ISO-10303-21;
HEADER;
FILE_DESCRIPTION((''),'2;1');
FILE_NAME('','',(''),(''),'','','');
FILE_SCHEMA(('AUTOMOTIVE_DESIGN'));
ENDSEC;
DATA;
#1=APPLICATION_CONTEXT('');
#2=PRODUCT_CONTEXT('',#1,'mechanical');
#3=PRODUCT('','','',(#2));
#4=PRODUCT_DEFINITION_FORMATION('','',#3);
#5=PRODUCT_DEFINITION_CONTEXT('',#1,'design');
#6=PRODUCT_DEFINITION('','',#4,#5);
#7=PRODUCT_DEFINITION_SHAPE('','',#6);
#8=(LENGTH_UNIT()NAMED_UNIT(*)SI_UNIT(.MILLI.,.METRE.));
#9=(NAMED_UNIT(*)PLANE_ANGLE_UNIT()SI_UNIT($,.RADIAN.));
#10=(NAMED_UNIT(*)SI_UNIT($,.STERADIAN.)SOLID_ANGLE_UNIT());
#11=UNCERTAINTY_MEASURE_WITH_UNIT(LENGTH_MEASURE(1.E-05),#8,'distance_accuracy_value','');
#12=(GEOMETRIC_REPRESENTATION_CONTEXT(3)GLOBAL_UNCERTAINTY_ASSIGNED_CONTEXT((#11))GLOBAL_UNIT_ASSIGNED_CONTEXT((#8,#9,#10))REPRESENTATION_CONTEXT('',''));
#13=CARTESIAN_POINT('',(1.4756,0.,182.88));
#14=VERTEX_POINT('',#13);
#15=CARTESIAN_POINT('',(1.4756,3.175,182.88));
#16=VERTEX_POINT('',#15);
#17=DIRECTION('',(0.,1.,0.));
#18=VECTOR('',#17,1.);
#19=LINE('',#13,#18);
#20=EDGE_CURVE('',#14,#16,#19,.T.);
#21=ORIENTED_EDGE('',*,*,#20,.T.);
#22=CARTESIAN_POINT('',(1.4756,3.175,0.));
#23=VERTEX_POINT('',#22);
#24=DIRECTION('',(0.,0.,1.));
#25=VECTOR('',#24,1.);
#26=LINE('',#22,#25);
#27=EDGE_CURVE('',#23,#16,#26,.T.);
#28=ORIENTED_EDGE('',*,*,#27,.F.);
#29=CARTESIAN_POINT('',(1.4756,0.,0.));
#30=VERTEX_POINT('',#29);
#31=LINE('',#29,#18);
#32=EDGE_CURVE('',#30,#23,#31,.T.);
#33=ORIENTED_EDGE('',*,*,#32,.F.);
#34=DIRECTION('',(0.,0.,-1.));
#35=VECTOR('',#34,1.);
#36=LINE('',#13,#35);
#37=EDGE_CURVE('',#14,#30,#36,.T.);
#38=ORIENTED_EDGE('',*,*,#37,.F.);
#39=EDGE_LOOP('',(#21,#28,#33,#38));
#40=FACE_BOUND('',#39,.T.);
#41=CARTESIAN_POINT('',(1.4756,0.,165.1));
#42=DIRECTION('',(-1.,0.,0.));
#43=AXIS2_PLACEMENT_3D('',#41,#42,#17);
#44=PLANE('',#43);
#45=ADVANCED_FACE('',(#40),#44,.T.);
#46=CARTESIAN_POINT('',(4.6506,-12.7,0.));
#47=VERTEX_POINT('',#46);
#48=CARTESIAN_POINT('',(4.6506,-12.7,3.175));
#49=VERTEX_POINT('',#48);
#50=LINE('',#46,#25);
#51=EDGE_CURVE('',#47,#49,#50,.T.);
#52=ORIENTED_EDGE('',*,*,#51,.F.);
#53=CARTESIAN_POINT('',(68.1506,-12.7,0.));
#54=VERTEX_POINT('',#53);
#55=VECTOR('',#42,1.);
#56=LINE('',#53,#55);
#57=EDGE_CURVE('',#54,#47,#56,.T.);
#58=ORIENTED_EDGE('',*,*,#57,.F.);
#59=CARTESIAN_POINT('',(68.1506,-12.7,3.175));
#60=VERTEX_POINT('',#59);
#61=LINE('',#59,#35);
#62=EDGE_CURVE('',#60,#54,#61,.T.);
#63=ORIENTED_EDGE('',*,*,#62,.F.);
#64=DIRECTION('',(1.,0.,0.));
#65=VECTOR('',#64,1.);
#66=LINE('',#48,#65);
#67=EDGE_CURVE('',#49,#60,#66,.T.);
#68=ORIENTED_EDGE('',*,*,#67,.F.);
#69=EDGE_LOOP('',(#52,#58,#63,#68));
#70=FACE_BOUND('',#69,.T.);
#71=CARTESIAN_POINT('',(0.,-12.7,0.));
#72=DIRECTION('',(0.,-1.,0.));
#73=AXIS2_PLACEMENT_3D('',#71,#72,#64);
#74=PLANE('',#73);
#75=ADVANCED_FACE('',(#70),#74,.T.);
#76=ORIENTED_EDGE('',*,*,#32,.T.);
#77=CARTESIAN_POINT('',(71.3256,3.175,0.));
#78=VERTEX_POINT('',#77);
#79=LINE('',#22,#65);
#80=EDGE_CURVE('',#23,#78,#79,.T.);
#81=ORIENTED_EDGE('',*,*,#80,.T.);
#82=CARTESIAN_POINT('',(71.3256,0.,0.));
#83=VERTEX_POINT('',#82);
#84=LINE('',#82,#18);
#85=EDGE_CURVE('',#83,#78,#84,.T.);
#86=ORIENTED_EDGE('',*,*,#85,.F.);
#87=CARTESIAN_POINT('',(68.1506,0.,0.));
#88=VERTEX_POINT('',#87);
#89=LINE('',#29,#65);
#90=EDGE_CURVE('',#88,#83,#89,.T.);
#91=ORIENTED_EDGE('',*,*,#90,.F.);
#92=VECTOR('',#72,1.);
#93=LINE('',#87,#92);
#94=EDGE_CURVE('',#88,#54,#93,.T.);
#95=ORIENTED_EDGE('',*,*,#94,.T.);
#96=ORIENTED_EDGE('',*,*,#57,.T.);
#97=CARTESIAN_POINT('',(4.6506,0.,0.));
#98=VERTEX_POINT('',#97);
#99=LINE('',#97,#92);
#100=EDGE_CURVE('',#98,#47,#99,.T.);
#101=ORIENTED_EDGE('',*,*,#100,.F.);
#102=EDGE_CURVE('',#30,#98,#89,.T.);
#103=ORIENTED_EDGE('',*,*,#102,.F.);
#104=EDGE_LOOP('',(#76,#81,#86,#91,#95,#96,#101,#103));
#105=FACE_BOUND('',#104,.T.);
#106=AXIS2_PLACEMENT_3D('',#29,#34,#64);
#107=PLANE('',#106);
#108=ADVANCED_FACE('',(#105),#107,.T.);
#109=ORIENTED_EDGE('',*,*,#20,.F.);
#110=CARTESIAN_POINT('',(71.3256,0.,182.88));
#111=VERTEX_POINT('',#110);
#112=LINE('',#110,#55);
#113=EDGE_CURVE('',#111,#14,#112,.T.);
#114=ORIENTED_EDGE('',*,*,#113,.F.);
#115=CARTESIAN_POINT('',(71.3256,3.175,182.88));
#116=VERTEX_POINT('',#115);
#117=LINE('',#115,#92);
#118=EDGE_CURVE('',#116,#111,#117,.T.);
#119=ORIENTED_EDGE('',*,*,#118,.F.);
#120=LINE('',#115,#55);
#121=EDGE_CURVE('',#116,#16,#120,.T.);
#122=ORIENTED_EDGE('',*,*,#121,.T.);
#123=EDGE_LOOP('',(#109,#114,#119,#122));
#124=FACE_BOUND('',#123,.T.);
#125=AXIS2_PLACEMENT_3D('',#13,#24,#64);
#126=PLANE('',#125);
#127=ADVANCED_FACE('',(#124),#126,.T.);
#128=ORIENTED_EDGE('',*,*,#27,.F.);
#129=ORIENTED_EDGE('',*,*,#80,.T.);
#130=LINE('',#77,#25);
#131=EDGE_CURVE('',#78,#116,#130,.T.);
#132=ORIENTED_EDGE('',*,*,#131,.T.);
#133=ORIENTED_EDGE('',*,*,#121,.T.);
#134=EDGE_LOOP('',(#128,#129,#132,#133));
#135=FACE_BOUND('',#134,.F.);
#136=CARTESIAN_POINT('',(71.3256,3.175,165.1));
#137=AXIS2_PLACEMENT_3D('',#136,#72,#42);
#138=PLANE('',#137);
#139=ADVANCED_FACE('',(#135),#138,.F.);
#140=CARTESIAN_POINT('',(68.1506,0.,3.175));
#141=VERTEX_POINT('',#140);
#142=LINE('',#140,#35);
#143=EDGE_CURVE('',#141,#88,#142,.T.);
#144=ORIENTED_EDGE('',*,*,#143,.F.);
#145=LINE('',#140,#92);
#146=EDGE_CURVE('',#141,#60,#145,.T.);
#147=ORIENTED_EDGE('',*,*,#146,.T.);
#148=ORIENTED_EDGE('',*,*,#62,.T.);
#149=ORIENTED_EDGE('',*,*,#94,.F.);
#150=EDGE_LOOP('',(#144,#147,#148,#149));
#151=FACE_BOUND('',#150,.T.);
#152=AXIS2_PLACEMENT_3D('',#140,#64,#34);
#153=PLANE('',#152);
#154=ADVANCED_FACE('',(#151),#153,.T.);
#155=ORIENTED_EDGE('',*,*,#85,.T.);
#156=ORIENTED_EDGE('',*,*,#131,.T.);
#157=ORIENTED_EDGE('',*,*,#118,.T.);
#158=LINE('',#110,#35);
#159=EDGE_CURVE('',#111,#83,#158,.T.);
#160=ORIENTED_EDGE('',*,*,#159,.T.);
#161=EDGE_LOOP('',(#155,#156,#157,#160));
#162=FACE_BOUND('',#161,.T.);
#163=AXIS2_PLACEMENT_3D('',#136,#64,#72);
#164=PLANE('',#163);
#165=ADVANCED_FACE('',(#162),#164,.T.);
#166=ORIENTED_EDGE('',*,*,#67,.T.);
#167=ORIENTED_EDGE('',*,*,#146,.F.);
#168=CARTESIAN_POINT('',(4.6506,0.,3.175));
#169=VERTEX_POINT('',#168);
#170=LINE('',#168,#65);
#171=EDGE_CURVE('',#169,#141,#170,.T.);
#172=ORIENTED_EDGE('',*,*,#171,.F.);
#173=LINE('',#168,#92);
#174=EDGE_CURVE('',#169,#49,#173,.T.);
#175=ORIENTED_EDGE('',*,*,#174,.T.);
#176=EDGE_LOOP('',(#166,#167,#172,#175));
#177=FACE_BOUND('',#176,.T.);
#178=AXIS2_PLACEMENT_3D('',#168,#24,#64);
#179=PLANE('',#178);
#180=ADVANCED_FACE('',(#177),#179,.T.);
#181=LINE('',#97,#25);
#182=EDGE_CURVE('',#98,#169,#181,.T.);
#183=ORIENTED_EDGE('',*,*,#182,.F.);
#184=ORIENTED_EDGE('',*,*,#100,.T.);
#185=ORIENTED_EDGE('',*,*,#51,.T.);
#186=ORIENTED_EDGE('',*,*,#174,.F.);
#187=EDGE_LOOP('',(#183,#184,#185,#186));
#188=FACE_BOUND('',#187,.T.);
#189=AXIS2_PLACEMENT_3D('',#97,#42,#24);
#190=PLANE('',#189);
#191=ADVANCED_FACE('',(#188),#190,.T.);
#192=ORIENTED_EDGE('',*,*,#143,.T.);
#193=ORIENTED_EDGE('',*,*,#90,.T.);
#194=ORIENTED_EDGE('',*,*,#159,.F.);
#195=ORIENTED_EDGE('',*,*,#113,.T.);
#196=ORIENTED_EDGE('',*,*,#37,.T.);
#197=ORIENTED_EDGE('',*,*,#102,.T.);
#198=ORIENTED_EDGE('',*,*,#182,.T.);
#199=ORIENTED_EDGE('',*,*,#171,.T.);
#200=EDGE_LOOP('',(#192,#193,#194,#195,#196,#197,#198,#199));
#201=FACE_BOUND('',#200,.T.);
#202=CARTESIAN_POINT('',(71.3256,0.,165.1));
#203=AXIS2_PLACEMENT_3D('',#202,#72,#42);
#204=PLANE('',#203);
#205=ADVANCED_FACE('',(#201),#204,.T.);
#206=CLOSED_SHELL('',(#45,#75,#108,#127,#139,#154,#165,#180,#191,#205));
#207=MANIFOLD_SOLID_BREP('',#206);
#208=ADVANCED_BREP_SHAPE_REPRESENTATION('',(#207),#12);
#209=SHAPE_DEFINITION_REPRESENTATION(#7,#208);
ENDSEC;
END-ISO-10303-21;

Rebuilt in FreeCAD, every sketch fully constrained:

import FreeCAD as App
import Part
import Sketcher

V = App.Vector
Q = App.Units.Quantity

doc = App.newDocument("Part")
body = doc.addObject("PartDesign::Body", "Body")

sketch1 = body.newObject("Sketcher::SketchObject", "Sketch")
sketch1.AttachmentSupport = (doc.getObject("XZ_Plane"), [""])
sketch1.MapMode = "FlatFace"
sketch1.addGeometry([
    Part.LineSegment(V(71.3256, 0, 0), V(1.4756, 0, 0)),
    Part.LineSegment(V(1.4756, 0, 0), V(1.4756, 165.1, 0)),
    Part.LineSegment(V(1.4756, 165.1, 0), V(71.3256, 165.1, 0)),
    Part.LineSegment(V(71.3256, 165.1, 0), V(71.3256, 0, 0)),
], False)
sketch1.addConstraint([
    Sketcher.Constraint("Coincident", 0, 2, 1, 1),
    Sketcher.Constraint("Coincident", 1, 2, 2, 1),
    Sketcher.Constraint("Coincident", 2, 2, 3, 1),
    Sketcher.Constraint("Coincident", 3, 2, 0, 1),
    Sketcher.Constraint("Horizontal", 0),
    Sketcher.Constraint("Vertical", 1),
    Sketcher.Constraint("Horizontal", 2),
    Sketcher.Constraint("Vertical", 3),
    Sketcher.Constraint("PointOnObject", 0, 2, -1),
    Sketcher.Constraint("DistanceY", 1, 1, 1, 2, Q("6.5 in")),
    Sketcher.Constraint("DistanceX", 0, 2, 0, 1, Q("2.75 in")),
    Sketcher.Constraint("DistanceX", -1, 1, 0, 2, Q("0.0581 in")),
])
pad1 = body.newObject("PartDesign::Pad", "Pad")
pad1.Profile = sketch1
pad1.Length = Q("0.125 in")
pad1.Reversed = True

sketch2 = body.newObject("Sketcher::SketchObject", "Sketch001")
sketch2.AttachmentSupport = (doc.getObject("XZ_Plane"), [""])
sketch2.MapMode = "FlatFace"
sketch2.addGeometry([
    Part.LineSegment(V(4.6506, 0, 0), V(68.1506, 0, 0)),
    Part.LineSegment(V(68.1506, 0, 0), V(68.1506, 3.175, 0)),
    Part.LineSegment(V(68.1506, 3.175, 0), V(4.6506, 3.175, 0)),
    Part.LineSegment(V(4.6506, 3.175, 0), V(4.6506, 0, 0)),
], False)
sketch2.addConstraint([
    Sketcher.Constraint("Coincident", 0, 2, 1, 1),
    Sketcher.Constraint("Coincident", 1, 2, 2, 1),
    Sketcher.Constraint("Coincident", 2, 2, 3, 1),
    Sketcher.Constraint("Coincident", 3, 2, 0, 1),
    Sketcher.Constraint("Horizontal", 0),
    Sketcher.Constraint("Vertical", 1),
    Sketcher.Constraint("Horizontal", 2),
    Sketcher.Constraint("Vertical", 3),
    Sketcher.Constraint("PointOnObject", 0, 2, -1),
    Sketcher.Constraint("DistanceX", 0, 1, 0, 2, Q("2.5 in")),
    Sketcher.Constraint("DistanceY", 1, 1, 1, 2, Q("0.125 in")),
    Sketcher.Constraint("DistanceX", -1, 1, 0, 2, Q("2.6831 in")),
])
pad2 = body.newObject("PartDesign::Pad", "Pad001")
pad2.Profile = sketch2
pad2.Length = Q("0.5 in")

sketch3 = body.newObject("Sketcher::SketchObject", "Sketch002")
sketch3.AttachmentSupport = (doc.getObject("XY_Plane"), [""])
sketch3.MapMode = "FlatFace"
sketch3.AttachmentOffset = App.Placement(V(0, 0, 6.5 * 25.4), App.Rotation())
sketch3.addGeometry([
    Part.LineSegment(V(71.3256, 0, 0), V(71.3256, 3.175, 0)),
    Part.LineSegment(V(71.3256, 3.175, 0), V(1.4756, 3.175, 0)),
    Part.LineSegment(V(1.4756, 3.175, 0), V(1.4756, 0, 0)),
    Part.LineSegment(V(1.4756, 0, 0), V(71.3256, 0, 0)),
], False)
sketch3.addConstraint([
    Sketcher.Constraint("Coincident", 0, 2, 1, 1),
    Sketcher.Constraint("Coincident", 1, 2, 2, 1),
    Sketcher.Constraint("Coincident", 2, 2, 3, 1),
    Sketcher.Constraint("Coincident", 3, 2, 0, 1),
    Sketcher.Constraint("Vertical", 0),
    Sketcher.Constraint("Horizontal", 1),
    Sketcher.Constraint("Vertical", 2),
    Sketcher.Constraint("Horizontal", 3),
    Sketcher.Constraint("PointOnObject", 2, 2, -1),
    Sketcher.Constraint("DistanceX", 1, 2, 1, 1, Q("2.75 in")),
    Sketcher.Constraint("DistanceY", 0, 1, 0, 2, Q("0.125 in")),
    Sketcher.Constraint("DistanceX", -1, 1, 0, 2, Q("2.8081 in")),
])
pad3 = body.newObject("PartDesign::Pad", "Pad002")
pad3.Profile = sketch3
pad3.Length = Q("0.7 in")

doc.recompute()
